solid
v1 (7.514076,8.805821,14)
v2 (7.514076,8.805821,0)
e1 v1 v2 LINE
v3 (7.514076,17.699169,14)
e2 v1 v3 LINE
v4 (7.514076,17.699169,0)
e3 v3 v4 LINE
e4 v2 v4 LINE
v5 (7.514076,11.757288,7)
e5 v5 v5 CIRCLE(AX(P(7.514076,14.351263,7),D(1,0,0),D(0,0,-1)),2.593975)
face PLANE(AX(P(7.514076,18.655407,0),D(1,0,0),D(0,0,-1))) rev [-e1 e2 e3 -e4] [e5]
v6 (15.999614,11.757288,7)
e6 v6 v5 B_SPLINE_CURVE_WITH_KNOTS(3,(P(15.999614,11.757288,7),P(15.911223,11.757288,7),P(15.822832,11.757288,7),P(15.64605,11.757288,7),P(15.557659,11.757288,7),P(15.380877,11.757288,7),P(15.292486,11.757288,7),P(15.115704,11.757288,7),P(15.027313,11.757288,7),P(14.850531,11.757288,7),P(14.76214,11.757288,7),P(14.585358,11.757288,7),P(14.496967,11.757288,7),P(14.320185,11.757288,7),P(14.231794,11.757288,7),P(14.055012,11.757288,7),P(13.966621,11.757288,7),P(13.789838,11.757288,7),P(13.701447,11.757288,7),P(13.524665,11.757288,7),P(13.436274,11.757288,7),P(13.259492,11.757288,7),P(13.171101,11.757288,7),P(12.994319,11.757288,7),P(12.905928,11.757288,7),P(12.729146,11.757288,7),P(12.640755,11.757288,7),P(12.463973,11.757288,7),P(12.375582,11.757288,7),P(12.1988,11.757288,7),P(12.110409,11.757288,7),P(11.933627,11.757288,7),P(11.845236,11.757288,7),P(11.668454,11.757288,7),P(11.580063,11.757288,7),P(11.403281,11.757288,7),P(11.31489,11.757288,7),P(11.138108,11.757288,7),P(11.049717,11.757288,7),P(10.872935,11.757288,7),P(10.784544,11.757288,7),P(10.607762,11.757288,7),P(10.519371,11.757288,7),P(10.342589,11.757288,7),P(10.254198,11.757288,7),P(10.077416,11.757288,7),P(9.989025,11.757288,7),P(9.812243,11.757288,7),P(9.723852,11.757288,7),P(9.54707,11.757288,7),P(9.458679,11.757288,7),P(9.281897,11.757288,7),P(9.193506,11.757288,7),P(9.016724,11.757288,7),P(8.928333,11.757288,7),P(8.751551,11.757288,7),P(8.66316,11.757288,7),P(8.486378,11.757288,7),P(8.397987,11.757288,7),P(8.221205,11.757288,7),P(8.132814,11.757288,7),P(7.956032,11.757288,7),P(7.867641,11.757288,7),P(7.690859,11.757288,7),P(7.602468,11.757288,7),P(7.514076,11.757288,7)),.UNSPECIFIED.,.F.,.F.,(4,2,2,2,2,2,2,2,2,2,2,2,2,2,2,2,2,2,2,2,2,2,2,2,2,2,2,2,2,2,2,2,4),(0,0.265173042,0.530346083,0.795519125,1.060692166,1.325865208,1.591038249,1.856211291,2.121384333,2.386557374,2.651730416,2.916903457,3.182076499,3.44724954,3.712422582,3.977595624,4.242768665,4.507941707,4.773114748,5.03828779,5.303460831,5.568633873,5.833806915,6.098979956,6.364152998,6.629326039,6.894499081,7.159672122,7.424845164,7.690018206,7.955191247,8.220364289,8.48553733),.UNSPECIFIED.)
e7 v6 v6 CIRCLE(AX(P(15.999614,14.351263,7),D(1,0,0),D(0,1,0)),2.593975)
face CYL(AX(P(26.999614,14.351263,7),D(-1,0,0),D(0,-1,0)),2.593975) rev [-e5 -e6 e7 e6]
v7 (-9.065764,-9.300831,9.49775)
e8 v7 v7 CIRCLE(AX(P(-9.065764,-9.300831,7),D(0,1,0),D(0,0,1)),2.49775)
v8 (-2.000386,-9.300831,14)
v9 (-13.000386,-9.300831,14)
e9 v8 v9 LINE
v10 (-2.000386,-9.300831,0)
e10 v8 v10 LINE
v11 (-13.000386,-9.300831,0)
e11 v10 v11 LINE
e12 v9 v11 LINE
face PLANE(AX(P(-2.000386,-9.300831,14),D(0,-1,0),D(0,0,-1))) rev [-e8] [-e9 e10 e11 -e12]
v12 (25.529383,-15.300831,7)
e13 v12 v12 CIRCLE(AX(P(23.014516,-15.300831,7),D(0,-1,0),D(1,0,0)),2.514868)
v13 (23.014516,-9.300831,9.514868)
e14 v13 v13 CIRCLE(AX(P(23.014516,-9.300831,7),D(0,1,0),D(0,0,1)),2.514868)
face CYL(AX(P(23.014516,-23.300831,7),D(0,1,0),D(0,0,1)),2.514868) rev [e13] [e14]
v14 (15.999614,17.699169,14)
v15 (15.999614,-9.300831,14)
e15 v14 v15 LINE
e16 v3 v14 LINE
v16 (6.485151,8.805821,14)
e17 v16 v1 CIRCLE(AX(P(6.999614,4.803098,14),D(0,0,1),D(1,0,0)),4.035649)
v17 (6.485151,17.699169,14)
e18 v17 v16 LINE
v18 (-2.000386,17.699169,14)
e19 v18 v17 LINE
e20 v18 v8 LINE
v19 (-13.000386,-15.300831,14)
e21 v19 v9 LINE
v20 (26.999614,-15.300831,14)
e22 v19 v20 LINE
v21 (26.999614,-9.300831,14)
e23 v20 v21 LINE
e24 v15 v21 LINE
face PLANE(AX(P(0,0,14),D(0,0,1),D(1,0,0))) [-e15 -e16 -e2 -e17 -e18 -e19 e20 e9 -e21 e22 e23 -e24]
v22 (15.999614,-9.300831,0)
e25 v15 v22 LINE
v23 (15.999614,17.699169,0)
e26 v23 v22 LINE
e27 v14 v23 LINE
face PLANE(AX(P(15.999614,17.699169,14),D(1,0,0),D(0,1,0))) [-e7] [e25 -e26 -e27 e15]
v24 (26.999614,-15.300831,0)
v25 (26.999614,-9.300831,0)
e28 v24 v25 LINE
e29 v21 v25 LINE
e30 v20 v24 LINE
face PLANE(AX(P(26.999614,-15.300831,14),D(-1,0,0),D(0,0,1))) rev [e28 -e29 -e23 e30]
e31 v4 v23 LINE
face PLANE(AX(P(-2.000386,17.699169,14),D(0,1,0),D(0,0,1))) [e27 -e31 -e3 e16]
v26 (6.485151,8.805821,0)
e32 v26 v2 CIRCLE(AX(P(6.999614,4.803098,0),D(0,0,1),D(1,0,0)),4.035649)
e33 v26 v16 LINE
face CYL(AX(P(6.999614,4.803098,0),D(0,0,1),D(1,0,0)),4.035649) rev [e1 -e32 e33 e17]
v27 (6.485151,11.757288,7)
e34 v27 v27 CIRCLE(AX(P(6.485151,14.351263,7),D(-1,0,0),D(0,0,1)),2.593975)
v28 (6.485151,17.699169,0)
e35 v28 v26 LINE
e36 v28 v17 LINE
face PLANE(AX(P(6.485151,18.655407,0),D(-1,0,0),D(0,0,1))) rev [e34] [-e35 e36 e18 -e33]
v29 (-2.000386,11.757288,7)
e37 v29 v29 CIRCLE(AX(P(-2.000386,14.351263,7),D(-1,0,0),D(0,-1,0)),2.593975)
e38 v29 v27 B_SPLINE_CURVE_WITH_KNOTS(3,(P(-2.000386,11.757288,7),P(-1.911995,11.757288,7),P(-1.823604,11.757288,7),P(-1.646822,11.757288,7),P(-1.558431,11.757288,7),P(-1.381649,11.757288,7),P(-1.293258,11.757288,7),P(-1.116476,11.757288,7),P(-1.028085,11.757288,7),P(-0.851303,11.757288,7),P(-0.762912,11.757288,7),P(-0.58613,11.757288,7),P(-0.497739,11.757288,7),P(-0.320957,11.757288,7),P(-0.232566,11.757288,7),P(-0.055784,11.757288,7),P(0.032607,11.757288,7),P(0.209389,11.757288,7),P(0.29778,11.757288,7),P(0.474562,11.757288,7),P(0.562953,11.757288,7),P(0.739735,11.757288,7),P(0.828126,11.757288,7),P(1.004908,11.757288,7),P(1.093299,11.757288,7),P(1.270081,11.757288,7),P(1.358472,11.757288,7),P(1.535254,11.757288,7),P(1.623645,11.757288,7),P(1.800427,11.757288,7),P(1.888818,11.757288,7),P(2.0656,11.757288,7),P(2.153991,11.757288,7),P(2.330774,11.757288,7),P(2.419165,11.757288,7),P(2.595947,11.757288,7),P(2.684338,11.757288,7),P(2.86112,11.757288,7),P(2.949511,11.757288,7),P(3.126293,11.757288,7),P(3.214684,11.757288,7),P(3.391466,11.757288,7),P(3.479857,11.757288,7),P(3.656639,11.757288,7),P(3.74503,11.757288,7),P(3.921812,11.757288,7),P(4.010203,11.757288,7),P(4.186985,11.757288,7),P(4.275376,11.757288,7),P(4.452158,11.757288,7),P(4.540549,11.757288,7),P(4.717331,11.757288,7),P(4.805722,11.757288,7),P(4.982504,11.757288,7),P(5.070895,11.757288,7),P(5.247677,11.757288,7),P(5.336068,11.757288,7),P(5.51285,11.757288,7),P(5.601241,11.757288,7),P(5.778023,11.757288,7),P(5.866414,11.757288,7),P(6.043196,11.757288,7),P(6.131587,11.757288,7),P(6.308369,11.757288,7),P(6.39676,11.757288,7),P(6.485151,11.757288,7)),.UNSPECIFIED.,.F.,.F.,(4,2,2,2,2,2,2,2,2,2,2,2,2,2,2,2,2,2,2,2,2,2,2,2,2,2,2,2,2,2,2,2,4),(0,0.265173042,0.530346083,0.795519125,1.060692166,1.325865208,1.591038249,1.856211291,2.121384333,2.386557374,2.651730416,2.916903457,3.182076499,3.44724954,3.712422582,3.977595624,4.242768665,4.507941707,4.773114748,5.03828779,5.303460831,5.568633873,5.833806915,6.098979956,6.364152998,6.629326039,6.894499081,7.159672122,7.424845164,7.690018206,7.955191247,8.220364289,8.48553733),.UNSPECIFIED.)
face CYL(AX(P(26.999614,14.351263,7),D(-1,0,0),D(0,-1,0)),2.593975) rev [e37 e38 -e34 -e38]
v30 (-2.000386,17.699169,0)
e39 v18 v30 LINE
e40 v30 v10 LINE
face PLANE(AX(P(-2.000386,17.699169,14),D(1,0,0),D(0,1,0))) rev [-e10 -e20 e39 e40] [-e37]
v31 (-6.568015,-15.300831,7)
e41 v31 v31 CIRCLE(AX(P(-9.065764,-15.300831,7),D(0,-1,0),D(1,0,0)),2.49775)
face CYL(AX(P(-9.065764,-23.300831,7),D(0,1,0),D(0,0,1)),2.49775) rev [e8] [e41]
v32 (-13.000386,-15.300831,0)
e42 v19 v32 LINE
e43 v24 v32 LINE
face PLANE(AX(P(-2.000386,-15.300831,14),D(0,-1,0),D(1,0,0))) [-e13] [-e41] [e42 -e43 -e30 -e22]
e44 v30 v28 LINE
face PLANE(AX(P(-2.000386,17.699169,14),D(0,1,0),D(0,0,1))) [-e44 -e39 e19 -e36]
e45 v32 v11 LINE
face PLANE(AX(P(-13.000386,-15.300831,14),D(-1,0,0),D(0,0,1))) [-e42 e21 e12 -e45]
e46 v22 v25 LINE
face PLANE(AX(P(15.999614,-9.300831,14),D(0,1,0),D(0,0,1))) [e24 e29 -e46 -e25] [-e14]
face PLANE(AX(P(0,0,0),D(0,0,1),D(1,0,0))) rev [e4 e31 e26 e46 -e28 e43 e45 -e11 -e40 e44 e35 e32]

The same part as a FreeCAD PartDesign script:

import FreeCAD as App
import Part
import Sketcher
from FreeCAD import Vector
Q = App.Units.Quantity

doc = App.newDocument("Part")
params = doc.addObject("Spreadsheet::Sheet", "Params")
for row, (alias, value) in enumerate([
    ("sketch1_width", "18 mm"),
    ("sketch1_width2", "11 mm"),
    ("sketch1_height", "27 mm"),
    ("sketch1_height2", "6 mm"),
    ("pad1_length", "14 mm"),
    ("pocket1_length", "14 mm"),
    ("pocket2_length", "14 mm"),
    ("pocket3_length", "14 mm"),
    ("pocket4_length", "14 mm"),
], start=1):
    params.set(f"A{row}", alias)
    params.set(f"B{row}", "=" + value)
    params.setAlias(f"B{row}", alias)

body = doc.addObject("PartDesign::Body", "Body")

sketch1 = body.newObject("Sketcher::SketchObject", "Sketch")
sketch1.AttachmentSupport = (doc.getObject("XY_Plane"), [""])
sketch1.MapMode = "FlatFace"
sketch1.addGeometry([
    Part.LineSegment(Vector(16, 18, 0), Vector(-2, 18, 0)),
    Part.LineSegment(Vector(-2, 18, 0), Vector(-2, -9, 0)),
    Part.LineSegment(Vector(-2, -9, 0), Vector(-13, -9, 0)),
    Part.LineSegment(Vector(-13, -9, 0), Vector(-13, -15, 0)),
    Part.LineSegment(Vector(-13, -15, 0), Vector(27, -15, 0)),
    Part.LineSegment(Vector(27, -15, 0), Vector(27, -9, 0)),
    Part.LineSegment(Vector(27, -9, 0), Vector(16, -9, 0)),
    Part.LineSegment(Vector(16, -9, 0), Vector(16, 18, 0)),
], False)
sketch1.addConstraint([
    Sketcher.Constraint("Coincident", 0, 2, 1, 1),
    Sketcher.Constraint("Coincident", 1, 2, 2, 1),
    Sketcher.Constraint("Coincident", 2, 2, 3, 1),
    Sketcher.Constraint("Coincident", 3, 2, 4, 1),
    Sketcher.Constraint("Coincident", 4, 2, 5, 1),
    Sketcher.Constraint("Coincident", 5, 2, 6, 1),
    Sketcher.Constraint("Coincident", 6, 2, 7, 1),
    Sketcher.Constraint("Coincident", 7, 2, 0, 1),
    Sketcher.Constraint("Horizontal", 0),
    Sketcher.Constraint("Vertical", 1),
    Sketcher.Constraint("Horizontal", 2),
    Sketcher.Constraint("Vertical", 3),
    Sketcher.Constraint("Horizontal", 4),
    Sketcher.Constraint("Vertical", 5),
    Sketcher.Constraint("Horizontal", 6),
    Sketcher.Constraint("Vertical", 7),
    Sketcher.Constraint("Horizontal", 2, 2, 5, 2),
    Sketcher.Constraint("Equal", 2, 6),
    Sketcher.Constraint("DistanceX", 0, 2, 0, 1, Q("18 mm")),
    Sketcher.Constraint("DistanceX", 2, 2, 2, 1, Q("11 mm")),
    Sketcher.Constraint("DistanceY", 1, 2, 1, 1, Q("27 mm")),
    Sketcher.Constraint("DistanceY", 3, 2, 3, 1, Q("6 mm")),
    Sketcher.Constraint("DistanceY", -1, 1, 0, 2, Q("17.699169 mm")),
    Sketcher.Constraint("DistanceX", 0, 2, -1, 1, Q("2.000386 mm")),
])
sketch1.setExpression("Constraints[18]", "Params.sketch1_width")
sketch1.setExpression("Constraints[19]", "Params.sketch1_width2")
sketch1.setExpression("Constraints[20]", "Params.sketch1_height")
sketch1.setExpression("Constraints[21]", "Params.sketch1_height2")
pad1 = body.newObject("PartDesign::Pad", "Pad")
pad1.Profile = sketch1
pad1.setExpression("Length", "Params.pad1_length")

sketch2 = body.newObject("Sketcher::SketchObject", "Sketch001")
sketch2.AttachmentSupport = (doc.getObject("XY_Plane"), [""])
sketch2.MapMode = "FlatFace"
sketch2.AttachmentOffset = App.Placement(Vector(0, 0, 14), App.Rotation())
sketch2.addGeometry(Part.Circle(Vector(7, 4.8, 0), Vector(0, 0, 1), 4), False)
sketch2.addConstraint([
    Sketcher.Constraint("Diameter", 0, Q("8.071299 mm")),
    Sketcher.Constraint("DistanceX", -1, 1, 0, 3, Q("6.999614 mm")),
    Sketcher.Constraint("DistanceY", -1, 1, 0, 3, Q("4.803098 mm")),
])
pocket1 = body.newObject("PartDesign::Pocket", "Pocket")
pocket1.Profile = sketch2
pocket1.setExpression("Length", "Params.pocket1_length")

sketch3 = body.newObject("Sketcher::SketchObject", "Sketch002")
sketch3.AttachmentSupport = (doc.getObject("XZ_Plane"), [""])
sketch3.MapMode = "FlatFace"
sketch3.AttachmentOffset = App.Placement(Vector(0, 0, 9.300831), App.Rotation())
sketch3.addGeometry(Part.Circle(Vector(-9.1, 7, 0), Vector(0, 0, 1), 2.5), False)
sketch3.addConstraint([
    Sketcher.Constraint("DistanceY", -1, 1, 0, 3, Q("7 mm")),
    Sketcher.Constraint("Diameter", 0, Q("4.995499 mm")),
    Sketcher.Constraint("DistanceX", 0, 3, -1, 1, Q("9.065764 mm")),
])
pocket2 = body.newObject("PartDesign::Pocket", "Pocket001")
pocket2.Profile = sketch3
pocket2.setExpression("Length", "Params.pocket2_length")
pocket2.Reversed = True

sketch4 = body.newObject("Sketcher::SketchObject", "Sketch003")
sketch4.AttachmentSupport = (doc.getObject("XZ_Plane"), [""])
sketch4.MapMode = "FlatFace"
sketch4.AttachmentOffset = App.Placement(Vector(0, 0, 9.300831), App.Rotation())
sketch4.addGeometry(Part.Circle(Vector(23, 7, 0), Vector(0, 0, 1), 2.5), False)
sketch4.addConstraint([
    Sketcher.Constraint("DistanceY", -1, 1, 0, 3, Q("7 mm")),
    Sketcher.Constraint("Diameter", 0, Q("5.029735 mm")),
    Sketcher.Constraint("DistanceX", -1, 1, 0, 3, Q("23.014516 mm")),
])
pocket3 = body.newObject("PartDesign::Pocket", "Pocket002")
pocket3.Profile = sketch4
pocket3.setExpression("Length", "Params.pocket3_length")
pocket3.Reversed = True

sketch5 = body.newObject("Sketcher::SketchObject", "Sketch004")
sketch5.AttachmentSupport = (doc.getObject("XY_Plane"), [""])
sketch5.MapMode = "FlatFace"
sketch5.AttachmentOffset = App.Placement(Vector(0, 0, 14), App.Rotation())
sketch5.addGeometry([
    Part.LineSegment(Vector(6.5, 18.7, 0), Vector(6.5, 8.2, 0)),
    Part.LineSegment(Vector(6.5, 8.2, 0), Vector(7.5, 8.2, 0)),
    Part.LineSegment(Vector(7.5, 8.2, 0), Vector(7.5, 18.7, 0)),
    Part.LineSegment(Vector(7.5, 18.7, 0), Vector(6.5, 18.7, 0)),
], False)
sketch5.addConstraint([
    Sketcher.Constraint("Coincident", 0, 2, 1, 1),
    Sketcher.Constraint("Coincident", 1, 2, 2, 1),
    Sketcher.Constraint("Coincident", 2, 2, 3, 1),
    Sketcher.Constraint("Coincident", 3, 2, 0, 1),
    Sketcher.Constraint("Vertical", 0),
    Sketcher.Constraint("Horizontal", 1),
    Sketcher.Constraint("Vertical", 2),
    Sketcher.Constraint("Horizontal", 3),
    Sketcher.Constraint("DistanceY", 0, 2, 0, 1, Q("10.439451 mm")),
    Sketcher.Constraint("DistanceX", 1, 1, 1, 2, Q("1.028925 mm")),
    Sketcher.Constraint("DistanceX", -1, 1, 0, 2, Q("6.485151 mm")),
    Sketcher.Constraint("DistanceY", -1, 1, 0, 2, Q("8.215957 mm")),
])
pocket4 = body.newObject("PartDesign::Pocket", "Pocket003")
pocket4.Profile = sketch5
pocket4.setExpression("Length", "Params.pocket4_length")

sketch6 = body.newObject("Sketcher::SketchObject", "Sketch005")
sketch6.AttachmentSupport = (doc.getObject("YZ_Plane"), [""])
sketch6.MapMode = "FlatFace"
sketch6.AttachmentOffset = App.Placement(Vector(0, 0, -2.000386), App.Rotation())
sketch6.addGeometry(Part.Circle(Vector(14.4, 7, 0), Vector(0, 0, 1), 2.6), False)
sketch6.addConstraint([
    Sketcher.Constraint("DistanceY", -1, 1, 0, 3, Q("7 mm")),
    Sketcher.Constraint("Diameter", 0, Q("5.187951 mm")),
    Sketcher.Constraint("DistanceX", -1, 1, 0, 3, Q("14.351263 mm")),
])
pocket5 = body.newObject("PartDesign::Pocket", "Pocket004")
pocket5.Profile = sketch6
pocket5.Type = "ThroughAll"
pocket5.Reversed = True

doc.recompute()
